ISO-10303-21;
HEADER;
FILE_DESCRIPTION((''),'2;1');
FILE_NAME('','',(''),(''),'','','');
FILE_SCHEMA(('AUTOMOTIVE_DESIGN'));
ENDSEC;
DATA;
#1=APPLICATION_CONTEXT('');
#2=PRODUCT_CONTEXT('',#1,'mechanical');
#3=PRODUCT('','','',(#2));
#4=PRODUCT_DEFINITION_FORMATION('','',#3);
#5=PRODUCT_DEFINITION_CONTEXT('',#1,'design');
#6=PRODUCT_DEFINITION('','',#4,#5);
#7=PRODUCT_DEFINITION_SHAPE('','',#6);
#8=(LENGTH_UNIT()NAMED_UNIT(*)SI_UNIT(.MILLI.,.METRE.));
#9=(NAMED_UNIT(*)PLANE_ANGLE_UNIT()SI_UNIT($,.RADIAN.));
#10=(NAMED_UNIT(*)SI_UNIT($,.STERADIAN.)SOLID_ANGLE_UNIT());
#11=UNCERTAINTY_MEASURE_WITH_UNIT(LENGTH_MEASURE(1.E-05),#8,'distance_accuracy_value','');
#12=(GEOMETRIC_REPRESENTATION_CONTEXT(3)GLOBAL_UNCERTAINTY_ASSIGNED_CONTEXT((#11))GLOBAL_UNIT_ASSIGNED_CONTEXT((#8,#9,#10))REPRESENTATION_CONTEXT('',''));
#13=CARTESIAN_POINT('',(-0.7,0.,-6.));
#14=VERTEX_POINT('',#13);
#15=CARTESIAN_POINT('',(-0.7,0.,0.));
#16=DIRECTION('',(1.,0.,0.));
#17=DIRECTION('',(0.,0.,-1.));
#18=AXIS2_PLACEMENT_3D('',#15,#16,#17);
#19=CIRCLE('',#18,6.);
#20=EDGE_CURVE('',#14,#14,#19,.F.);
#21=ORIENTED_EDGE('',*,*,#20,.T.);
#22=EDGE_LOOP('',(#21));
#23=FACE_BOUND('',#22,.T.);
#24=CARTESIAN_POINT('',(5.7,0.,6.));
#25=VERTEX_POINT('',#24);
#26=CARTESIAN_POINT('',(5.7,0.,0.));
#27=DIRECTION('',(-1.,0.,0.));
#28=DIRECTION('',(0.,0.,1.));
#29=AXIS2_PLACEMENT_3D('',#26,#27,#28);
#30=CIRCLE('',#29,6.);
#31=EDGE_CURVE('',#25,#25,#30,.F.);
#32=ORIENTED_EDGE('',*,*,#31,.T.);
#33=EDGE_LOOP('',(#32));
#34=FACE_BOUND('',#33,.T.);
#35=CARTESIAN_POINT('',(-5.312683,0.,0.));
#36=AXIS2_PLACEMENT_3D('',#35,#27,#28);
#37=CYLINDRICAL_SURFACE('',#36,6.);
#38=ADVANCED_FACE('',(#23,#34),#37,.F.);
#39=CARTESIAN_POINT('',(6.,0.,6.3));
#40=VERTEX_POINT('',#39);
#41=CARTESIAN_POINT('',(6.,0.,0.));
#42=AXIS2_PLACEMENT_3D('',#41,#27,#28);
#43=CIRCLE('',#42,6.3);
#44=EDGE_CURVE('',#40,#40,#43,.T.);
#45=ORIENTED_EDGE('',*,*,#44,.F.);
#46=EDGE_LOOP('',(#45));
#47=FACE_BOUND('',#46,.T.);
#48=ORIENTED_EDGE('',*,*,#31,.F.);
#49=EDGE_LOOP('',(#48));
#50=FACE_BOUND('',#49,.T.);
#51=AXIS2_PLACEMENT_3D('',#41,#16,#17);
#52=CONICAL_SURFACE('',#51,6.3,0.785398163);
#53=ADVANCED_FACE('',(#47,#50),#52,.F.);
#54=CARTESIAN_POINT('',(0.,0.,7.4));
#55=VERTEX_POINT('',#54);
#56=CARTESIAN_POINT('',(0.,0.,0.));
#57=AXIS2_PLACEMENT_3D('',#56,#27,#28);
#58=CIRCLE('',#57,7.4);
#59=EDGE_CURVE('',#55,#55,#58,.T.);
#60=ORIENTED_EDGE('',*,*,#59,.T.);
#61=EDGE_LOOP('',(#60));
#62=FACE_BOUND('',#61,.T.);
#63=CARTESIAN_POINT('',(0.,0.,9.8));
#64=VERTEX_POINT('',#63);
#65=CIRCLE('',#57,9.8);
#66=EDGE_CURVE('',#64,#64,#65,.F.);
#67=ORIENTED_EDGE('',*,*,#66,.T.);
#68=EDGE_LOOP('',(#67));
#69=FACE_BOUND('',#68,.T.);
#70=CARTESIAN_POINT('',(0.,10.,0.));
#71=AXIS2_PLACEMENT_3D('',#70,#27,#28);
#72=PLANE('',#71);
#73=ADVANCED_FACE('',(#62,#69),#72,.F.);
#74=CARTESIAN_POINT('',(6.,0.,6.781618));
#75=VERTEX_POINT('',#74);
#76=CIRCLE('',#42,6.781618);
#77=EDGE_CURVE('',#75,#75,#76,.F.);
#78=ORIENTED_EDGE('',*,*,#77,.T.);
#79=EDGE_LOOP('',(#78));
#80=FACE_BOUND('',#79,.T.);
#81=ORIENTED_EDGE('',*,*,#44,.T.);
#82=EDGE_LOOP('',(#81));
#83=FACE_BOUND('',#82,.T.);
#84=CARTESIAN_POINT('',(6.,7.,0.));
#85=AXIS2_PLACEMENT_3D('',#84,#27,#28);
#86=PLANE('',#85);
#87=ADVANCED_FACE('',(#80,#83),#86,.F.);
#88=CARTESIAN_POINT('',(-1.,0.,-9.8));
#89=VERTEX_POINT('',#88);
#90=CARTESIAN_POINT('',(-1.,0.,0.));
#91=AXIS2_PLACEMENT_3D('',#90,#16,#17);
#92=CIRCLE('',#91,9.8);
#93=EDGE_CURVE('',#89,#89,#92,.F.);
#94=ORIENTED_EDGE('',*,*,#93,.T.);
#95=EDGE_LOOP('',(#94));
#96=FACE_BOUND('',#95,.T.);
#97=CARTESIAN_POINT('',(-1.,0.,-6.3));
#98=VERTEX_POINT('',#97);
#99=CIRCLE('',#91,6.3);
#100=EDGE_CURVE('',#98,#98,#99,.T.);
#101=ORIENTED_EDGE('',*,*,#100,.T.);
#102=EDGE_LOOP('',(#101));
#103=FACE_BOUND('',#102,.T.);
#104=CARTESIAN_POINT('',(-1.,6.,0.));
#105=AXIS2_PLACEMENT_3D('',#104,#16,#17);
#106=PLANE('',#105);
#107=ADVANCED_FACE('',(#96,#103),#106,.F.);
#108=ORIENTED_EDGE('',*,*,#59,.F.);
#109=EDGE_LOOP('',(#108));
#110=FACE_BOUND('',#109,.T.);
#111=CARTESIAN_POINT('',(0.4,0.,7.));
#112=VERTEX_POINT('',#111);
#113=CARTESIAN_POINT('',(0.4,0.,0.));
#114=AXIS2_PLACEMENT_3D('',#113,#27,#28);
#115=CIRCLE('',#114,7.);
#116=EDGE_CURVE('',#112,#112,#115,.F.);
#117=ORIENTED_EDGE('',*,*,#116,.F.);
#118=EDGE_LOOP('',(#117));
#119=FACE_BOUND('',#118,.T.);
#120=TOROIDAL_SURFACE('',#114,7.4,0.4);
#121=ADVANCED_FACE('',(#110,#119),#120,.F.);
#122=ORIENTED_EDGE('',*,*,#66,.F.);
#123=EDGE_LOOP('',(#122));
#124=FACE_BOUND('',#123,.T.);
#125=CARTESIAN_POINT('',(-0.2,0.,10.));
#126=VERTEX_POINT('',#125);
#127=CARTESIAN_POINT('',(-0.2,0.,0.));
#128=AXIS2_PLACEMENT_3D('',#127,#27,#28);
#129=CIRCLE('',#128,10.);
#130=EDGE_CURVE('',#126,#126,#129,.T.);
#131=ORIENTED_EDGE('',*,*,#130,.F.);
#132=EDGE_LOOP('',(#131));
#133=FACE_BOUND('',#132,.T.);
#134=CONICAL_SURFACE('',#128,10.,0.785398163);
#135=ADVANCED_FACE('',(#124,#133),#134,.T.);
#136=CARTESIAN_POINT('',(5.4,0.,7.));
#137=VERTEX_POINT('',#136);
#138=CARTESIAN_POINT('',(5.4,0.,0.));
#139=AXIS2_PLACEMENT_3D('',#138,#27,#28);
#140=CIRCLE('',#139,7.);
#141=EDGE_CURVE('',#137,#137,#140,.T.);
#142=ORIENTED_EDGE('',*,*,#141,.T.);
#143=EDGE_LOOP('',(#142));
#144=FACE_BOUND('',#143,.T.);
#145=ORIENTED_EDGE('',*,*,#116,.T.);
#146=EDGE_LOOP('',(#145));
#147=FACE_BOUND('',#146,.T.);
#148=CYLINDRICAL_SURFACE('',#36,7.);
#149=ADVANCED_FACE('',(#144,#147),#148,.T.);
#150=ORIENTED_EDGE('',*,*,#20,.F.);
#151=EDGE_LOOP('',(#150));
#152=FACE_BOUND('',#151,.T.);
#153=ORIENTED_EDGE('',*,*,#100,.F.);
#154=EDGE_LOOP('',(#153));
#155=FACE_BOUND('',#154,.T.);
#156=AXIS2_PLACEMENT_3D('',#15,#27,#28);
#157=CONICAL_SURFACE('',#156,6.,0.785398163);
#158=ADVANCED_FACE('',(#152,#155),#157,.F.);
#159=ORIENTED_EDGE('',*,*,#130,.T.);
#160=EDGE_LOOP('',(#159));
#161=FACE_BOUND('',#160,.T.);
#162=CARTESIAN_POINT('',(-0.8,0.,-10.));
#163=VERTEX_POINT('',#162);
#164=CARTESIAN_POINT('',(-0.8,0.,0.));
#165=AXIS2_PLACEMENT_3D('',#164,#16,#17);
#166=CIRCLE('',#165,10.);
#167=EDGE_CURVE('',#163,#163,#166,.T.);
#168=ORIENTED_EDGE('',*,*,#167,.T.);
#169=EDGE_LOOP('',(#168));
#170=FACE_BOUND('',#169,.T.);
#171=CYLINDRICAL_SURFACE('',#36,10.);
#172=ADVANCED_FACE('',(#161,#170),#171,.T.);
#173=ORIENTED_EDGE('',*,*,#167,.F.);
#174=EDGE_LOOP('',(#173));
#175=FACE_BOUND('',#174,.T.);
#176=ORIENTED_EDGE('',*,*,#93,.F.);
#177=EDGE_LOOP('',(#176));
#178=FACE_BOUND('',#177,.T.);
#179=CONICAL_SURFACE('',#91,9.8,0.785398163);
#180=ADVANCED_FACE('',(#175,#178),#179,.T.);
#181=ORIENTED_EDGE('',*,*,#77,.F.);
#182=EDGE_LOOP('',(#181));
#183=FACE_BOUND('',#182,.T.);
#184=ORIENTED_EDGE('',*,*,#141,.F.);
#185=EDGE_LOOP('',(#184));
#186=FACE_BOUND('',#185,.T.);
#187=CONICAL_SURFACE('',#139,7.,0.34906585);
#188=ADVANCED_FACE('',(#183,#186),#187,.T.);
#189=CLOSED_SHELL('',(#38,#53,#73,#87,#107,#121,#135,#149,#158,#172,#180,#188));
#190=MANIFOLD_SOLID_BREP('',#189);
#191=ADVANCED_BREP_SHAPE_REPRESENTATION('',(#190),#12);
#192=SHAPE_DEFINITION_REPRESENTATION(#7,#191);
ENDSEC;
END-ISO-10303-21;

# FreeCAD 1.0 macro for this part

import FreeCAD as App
import Part
import Sketcher
from FreeCAD import Vector


def edges_at(feature, points):
    """Names of the edges that pass closest to the given points."""
    edges = feature.Shape.Edges
    near = lambda p: min(range(len(edges)), key=lambda i: edges[i].distToShape(Part.Vertex(*p))[0])
    return sorted({f"Edge{near(p) + 1}" for p in points})

doc = App.newDocument("Part")
params = doc.addObject("Spreadsheet::Sheet", "Params")
for row, (alias, value) in enumerate([
    ("sketch1_width", "7 mm"),
    ("sketch1_width2", "6 mm"),
    ("sketch1_height", "4 mm"),
    ("revolution_angle", "360 deg"),
    ("chamfer_size", "0.6 mm"),
    ("chamfer_size2", "0.218382 mm"),
    ("chamfer2_size", "0.3 mm"),
    ("chamfer3_size", "0.2 mm"),
    ("fillet_radius", "0.4 mm"),
], start=1):
    params.set(f"A{row}", alias)
    params.set(f"B{row}", "=" + value)
    params.setAlias(f"B{row}", alias)

body = doc.addObject("PartDesign::Body", "Body")

sketch1 = body.newObject("Sketcher::SketchObject", "Sketch")
sketch1.AttachmentSupport = (doc.getObject("XY_Plane"), [""])
sketch1.MapMode = "FlatFace"
sketch1.addGeometry([
    Part.LineSegment(Vector(-1, 10, 0), Vector(-1, 6, 0)),
    Part.LineSegment(Vector(-1, 6, 0), Vector(6, 6, 0)),
    Part.LineSegment(Vector(6, 6, 0), Vector(6, 7, 0)),
    Part.LineSegment(Vector(6, 7, 0), Vector(0, 7, 0)),
    Part.LineSegment(Vector(0, 7, 0), Vector(0, 10, 0)),
    Part.LineSegment(Vector(0, 10, 0), Vector(-1, 10, 0)),
], False)
sketch1.addConstraint([
    Sketcher.Constraint("Coincident", 0, 2, 1, 1),
    Sketcher.Constraint("Coincident", 1, 2, 2, 1),
    Sketcher.Constraint("Coincident", 2, 2, 3, 1),
    Sketcher.Constraint("Coincident", 3, 2, 4, 1),
    Sketcher.Constraint("Coincident", 4, 2, 5, 1),
    Sketcher.Constraint("Coincident", 5, 2, 0, 1),
    Sketcher.Constraint("Vertical", 0),
    Sketcher.Constraint("Horizontal", 1),
    Sketcher.Constraint("Vertical", 2),
    Sketcher.Constraint("Horizontal", 3),
    Sketcher.Constraint("Vertical", 4),
    Sketcher.Constraint("Horizontal", 5),
    Sketcher.Constraint("PointOnObject", 3, 2, -2),
    Sketcher.Constraint("Equal", 5, 2),
    Sketcher.Constraint("DistanceX", 1, 1, 1, 2, 7.0),
    Sketcher.Constraint("DistanceX", 3, 2, 3, 1, 6.0),
    Sketcher.Constraint("DistanceY", 0, 2, 0, 1, 4.0),
    Sketcher.Constraint("DistanceY", -1, 1, 0, 2, 6.0),
])
sketch1.setExpression("Constraints[14]", "Params.sketch1_width")
sketch1.setExpression("Constraints[15]", "Params.sketch1_width2")
sketch1.setExpression("Constraints[16]", "Params.sketch1_height")
revolution = body.newObject("PartDesign::Revolution", "Revolution")
revolution.Profile = sketch1
revolution.ReferenceAxis = (sketch1, ["H_Axis"])
revolution.setExpression("Angle", "Params.revolution_angle")
doc.recompute()

chamfer = body.newObject("PartDesign::Chamfer", "Chamfer")
chamfer.Base = (revolution, edges_at(revolution, [(6, 0, -7)]))
chamfer.ChamferType = "Two distances"
chamfer.setExpression("Size", "Params.chamfer_size")
chamfer.setExpression("Size2", "Params.chamfer_size2")
chamfer.FlipDirection = True
doc.recompute()

chamfer2 = body.newObject("PartDesign::Chamfer", "Chamfer001")
chamfer2.Base = (chamfer, edges_at(chamfer, [(-1, 0, -6), (6, 0, -6)]))
chamfer2.setExpression("Size", "Params.chamfer2_size")
doc.recompute()

chamfer3 = body.newObject("PartDesign::Chamfer", "Chamfer002")
chamfer3.Base = (chamfer2, edges_at(chamfer2, [(0, 0, -10), (-1, 0, -10)]))
chamfer3.setExpression("Size", "Params.chamfer3_size")
doc.recompute()

fillet = body.newObject("PartDesign::Fillet", "Fillet")
fillet.Base = (chamfer3, edges_at(chamfer3, [(0, 0, -7)]))
fillet.setExpression("Radius", "Params.fillet_radius")

doc.recompute()
